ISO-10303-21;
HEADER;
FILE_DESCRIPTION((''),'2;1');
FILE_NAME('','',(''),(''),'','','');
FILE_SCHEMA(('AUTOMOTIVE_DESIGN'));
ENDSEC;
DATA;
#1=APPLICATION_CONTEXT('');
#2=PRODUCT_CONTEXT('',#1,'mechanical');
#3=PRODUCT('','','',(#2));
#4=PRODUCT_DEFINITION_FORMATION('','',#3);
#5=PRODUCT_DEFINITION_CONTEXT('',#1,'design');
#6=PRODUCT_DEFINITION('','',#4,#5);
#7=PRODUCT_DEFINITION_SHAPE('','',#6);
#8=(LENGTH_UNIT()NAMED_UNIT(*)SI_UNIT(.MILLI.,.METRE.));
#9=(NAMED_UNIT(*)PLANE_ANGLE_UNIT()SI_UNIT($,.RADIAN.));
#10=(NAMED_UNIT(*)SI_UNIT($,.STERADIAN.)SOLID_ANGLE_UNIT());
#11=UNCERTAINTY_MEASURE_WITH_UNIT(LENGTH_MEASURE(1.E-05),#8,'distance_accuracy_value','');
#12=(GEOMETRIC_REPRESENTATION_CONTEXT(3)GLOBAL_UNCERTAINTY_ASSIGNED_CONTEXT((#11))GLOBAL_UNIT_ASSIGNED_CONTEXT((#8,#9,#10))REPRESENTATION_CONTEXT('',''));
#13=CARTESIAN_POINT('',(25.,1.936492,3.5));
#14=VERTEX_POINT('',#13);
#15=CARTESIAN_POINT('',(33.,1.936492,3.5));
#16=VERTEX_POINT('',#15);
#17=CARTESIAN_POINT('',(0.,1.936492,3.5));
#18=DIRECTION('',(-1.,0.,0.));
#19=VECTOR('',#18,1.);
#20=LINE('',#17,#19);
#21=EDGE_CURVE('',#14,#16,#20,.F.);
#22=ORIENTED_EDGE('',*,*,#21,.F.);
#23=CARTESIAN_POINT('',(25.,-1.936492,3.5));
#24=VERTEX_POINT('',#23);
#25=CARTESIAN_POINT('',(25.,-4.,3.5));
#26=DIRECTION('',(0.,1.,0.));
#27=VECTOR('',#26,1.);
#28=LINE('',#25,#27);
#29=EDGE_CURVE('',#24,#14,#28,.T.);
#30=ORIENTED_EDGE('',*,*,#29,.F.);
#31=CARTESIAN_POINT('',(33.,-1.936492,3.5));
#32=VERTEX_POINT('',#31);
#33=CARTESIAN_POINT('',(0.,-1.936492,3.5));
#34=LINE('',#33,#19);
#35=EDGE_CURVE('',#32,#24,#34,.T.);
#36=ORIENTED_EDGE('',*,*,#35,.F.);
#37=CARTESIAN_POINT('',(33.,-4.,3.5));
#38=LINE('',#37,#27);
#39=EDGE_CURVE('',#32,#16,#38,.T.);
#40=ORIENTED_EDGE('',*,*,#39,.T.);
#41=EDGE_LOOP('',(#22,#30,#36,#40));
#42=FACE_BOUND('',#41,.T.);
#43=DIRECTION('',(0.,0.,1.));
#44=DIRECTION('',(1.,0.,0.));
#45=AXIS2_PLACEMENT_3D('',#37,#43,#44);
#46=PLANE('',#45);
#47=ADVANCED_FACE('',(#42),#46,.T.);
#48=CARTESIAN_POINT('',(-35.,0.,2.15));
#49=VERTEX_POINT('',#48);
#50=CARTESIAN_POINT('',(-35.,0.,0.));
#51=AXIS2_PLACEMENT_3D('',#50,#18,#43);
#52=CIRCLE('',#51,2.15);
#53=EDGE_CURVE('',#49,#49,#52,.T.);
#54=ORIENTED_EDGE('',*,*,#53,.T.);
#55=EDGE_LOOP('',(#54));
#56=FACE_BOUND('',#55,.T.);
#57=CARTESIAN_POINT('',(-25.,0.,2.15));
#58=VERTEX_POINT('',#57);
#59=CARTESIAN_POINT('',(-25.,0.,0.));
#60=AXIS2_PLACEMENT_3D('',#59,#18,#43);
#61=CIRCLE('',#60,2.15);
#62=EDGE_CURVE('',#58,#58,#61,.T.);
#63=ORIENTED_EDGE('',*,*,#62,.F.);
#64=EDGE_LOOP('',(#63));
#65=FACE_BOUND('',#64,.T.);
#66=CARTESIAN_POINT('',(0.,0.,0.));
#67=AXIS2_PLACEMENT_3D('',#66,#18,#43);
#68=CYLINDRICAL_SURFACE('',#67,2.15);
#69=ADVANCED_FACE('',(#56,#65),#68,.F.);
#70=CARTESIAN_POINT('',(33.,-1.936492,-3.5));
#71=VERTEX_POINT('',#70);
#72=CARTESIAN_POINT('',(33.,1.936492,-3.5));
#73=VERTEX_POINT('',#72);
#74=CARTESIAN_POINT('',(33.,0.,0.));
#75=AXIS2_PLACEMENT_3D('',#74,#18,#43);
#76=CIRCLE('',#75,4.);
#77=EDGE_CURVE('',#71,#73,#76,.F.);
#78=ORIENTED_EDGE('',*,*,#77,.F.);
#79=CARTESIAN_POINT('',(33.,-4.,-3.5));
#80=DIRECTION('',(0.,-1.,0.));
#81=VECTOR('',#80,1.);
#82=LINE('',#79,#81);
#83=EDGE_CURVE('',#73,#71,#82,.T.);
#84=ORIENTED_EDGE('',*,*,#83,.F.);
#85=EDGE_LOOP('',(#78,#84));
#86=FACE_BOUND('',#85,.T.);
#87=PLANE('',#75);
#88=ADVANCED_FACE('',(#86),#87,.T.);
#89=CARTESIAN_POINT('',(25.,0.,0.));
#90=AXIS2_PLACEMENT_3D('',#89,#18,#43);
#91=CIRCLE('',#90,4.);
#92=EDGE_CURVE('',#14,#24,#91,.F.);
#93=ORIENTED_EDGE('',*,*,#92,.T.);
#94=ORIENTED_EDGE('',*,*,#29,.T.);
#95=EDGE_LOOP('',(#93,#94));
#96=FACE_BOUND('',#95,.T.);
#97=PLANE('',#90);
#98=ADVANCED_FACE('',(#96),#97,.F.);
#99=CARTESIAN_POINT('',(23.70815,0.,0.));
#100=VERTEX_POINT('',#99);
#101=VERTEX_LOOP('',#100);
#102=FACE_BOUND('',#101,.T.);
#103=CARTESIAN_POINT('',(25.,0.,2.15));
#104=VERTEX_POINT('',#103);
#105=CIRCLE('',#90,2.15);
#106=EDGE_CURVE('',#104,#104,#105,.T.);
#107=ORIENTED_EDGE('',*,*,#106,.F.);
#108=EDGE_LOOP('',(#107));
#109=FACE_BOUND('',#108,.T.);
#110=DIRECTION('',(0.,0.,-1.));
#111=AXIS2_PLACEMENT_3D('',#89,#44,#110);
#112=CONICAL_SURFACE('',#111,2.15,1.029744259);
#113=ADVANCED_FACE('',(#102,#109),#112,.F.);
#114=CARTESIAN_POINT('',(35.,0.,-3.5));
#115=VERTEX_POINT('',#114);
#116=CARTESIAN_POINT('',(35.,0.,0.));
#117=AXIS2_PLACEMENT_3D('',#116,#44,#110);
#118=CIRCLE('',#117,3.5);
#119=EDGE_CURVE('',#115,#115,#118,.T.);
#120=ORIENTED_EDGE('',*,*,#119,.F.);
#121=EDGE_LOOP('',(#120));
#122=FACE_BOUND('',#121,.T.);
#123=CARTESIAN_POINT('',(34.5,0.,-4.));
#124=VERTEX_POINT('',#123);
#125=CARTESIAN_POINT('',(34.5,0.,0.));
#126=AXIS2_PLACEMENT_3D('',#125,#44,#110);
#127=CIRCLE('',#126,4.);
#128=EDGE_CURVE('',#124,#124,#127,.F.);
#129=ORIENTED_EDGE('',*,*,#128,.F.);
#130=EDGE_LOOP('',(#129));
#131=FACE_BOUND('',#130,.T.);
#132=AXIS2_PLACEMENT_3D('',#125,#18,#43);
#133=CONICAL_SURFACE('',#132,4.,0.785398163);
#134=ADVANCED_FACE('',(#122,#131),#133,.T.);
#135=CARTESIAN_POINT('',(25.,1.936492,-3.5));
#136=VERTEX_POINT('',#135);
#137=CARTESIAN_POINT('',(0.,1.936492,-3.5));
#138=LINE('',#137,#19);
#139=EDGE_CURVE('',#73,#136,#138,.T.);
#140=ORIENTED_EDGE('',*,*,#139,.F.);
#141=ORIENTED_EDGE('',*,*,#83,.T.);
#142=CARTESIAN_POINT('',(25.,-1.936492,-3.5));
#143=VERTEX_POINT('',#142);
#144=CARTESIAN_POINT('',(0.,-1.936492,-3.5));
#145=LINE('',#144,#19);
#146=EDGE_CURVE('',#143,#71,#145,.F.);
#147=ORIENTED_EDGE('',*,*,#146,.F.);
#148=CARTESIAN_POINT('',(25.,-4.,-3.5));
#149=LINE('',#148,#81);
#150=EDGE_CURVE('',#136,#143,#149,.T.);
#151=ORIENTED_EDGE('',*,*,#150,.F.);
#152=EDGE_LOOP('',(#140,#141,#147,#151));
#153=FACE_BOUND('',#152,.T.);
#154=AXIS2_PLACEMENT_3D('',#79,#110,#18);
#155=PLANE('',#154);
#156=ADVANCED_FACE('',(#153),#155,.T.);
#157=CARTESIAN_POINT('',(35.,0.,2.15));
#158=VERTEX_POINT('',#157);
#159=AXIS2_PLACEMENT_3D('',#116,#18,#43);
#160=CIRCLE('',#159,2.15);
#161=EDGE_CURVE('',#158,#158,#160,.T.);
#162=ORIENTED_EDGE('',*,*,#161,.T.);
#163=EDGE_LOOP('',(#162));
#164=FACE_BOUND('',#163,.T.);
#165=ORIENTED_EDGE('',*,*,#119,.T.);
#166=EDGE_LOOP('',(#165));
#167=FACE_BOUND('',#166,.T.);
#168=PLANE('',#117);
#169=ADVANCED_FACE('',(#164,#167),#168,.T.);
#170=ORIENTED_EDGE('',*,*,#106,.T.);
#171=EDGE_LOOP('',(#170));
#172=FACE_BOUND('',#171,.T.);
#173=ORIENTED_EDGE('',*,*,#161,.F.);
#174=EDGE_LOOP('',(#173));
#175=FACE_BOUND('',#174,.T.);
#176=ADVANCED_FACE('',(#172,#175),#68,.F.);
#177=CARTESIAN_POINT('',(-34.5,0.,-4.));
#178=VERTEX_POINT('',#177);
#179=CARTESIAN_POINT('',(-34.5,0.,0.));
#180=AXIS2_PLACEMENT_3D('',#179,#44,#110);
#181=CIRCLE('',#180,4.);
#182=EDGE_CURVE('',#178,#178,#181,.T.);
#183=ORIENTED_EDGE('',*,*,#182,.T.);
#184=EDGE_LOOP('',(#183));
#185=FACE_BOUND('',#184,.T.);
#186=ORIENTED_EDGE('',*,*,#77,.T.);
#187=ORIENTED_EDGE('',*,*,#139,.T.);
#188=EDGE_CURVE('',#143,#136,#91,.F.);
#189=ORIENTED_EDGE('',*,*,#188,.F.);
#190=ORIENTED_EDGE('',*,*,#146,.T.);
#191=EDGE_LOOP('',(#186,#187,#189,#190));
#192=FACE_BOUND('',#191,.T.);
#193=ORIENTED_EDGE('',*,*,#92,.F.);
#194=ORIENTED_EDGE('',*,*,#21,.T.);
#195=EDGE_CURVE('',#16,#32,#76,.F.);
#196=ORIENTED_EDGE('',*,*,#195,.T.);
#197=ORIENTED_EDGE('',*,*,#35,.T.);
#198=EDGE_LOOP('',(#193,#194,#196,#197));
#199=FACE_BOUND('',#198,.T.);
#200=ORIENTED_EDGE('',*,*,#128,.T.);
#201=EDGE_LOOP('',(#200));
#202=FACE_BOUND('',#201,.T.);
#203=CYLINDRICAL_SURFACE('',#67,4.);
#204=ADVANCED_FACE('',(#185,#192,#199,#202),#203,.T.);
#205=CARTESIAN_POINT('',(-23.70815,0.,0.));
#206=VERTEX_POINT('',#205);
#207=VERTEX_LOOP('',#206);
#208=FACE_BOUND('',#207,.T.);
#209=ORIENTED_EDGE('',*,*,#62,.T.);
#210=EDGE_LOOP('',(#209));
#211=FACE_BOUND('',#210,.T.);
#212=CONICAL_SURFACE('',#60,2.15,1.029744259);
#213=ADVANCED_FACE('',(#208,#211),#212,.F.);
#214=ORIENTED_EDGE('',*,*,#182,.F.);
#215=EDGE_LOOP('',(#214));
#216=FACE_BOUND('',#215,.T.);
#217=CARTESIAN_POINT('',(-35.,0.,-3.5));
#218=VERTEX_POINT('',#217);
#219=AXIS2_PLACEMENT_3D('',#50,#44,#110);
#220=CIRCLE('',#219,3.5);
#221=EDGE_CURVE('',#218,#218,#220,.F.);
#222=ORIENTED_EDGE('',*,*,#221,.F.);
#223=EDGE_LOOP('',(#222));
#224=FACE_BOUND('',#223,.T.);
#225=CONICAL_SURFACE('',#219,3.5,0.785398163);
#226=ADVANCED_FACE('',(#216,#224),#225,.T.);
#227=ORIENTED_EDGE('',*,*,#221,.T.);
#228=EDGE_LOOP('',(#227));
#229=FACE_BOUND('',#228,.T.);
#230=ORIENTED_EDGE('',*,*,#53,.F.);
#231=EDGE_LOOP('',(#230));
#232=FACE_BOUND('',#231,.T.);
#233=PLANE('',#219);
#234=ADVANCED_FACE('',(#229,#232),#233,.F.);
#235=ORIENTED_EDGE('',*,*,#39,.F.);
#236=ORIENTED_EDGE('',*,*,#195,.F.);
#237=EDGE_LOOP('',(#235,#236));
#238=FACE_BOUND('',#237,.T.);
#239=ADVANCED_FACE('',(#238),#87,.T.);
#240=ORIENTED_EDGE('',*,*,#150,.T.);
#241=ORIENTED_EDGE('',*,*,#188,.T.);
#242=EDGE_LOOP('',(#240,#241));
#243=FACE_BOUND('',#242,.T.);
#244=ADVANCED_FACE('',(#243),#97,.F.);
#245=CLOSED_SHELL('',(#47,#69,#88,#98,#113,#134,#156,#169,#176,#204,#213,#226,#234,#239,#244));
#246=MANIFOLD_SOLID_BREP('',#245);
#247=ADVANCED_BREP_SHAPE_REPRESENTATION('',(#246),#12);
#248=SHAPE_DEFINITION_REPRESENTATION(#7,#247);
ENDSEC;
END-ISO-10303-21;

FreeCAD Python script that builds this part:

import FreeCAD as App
import Part
import Sketcher

V = App.Vector
Q = App.Units.Quantity


def edges_at(feature, points):
    """Names of the edges that pass closest to the given points."""
    edges = feature.Shape.Edges
    near = lambda p: min(range(len(edges)), key=lambda i: edges[i].distToShape(Part.Vertex(*p))[0])
    return sorted({f"Edge{near(p) + 1}" for p in points})


def add_polygon(sketch, points):
    """Adds a closed chain of lines whose ends are joined by coincident constraints."""
    first, n = sketch.GeometryCount, len(points)
    for a, b in zip(points, points[1:] + points[:1]):
        sketch.addGeometry(Part.LineSegment(App.Vector(*a, 0), App.Vector(*b, 0)), False)
    for i in range(n):
        sketch.addConstraint(Sketcher.Constraint("Coincident", first + i, 2, first + (i + 1) % n, 1))

doc = App.newDocument("Part")
body = doc.addObject("PartDesign::Body", "Body")

# Sketch on XY plane
sketch1 = body.newObject("Sketcher::SketchObject", "Sketch")
sketch1.AttachmentSupport = (doc.getObject("XY_Plane"), [""])
sketch1.MapMode = "FlatFace"
add_polygon(sketch1, [(-35, 2.1), (-25, 2.1), (-23.7, 0), (23.7, 0), (25, 2.1), (35, 2.1), (35, 4), (-35, 4)])  # lines 0-7
sketch1.addConstraint([
    Sketcher.Constraint("Horizontal", 0),
    Sketcher.Constraint("Horizontal", 2),
    Sketcher.Constraint("Horizontal", 4),
    Sketcher.Constraint("Vertical", 5),
    Sketcher.Constraint("Horizontal", 6),
    Sketcher.Constraint("Vertical", 7),
    Sketcher.Constraint("Symmetric", 1, 2, 2, 2, -1, 1),
    Sketcher.Constraint("Symmetric", 0, 2, 3, 2, -2),
    Sketcher.Constraint("Equal", 0, 4),
    Sketcher.Constraint("DistanceX", 0, 1, 0, 2, Q("10 mm")),
    Sketcher.Constraint("DistanceX", 6, 2, 6, 1, Q("70 mm")),
    Sketcher.Constraint("Angle", 1, Q("-59 deg")),
    Sketcher.Constraint("DistanceY", -1, 1, 5, 2, Q("4 mm")),
    Sketcher.Constraint("DistanceY", 5, 1, 5, 2, Q("1.85 mm")),
])
revolution = body.newObject("PartDesign::Revolution", "Revolution")
revolution.Profile = sketch1
revolution.ReferenceAxis = (sketch1, ["H_Axis"])
revolution.Angle = 360
doc.recompute()

chamfer = body.newObject("PartDesign::Chamfer", "Chamfer")
chamfer.Base = (revolution, edges_at(revolution, [(-35, 0, -4), (35, 0, -4)]))
chamfer.Size = 0.5

# Sketch on YZ plane
sketch2 = body.newObject("Sketcher::SketchObject", "Sketch001")
sketch2.AttachmentSupport = (doc.getObject("YZ_Plane"), [""])
sketch2.MapMode = "FlatFace"
sketch2.AttachmentOffset = App.Placement(V(0, 0, 25), App.Rotation())
add_polygon(sketch2, [(12, -12), (-12, -12), (-12, 12), (12, 12)])  # lines 0-3
add_polygon(sketch2, [(-4, 4), (-4, -4), (4, -4), (4, 4)])  # lines 4-7
sketch2.addConstraint([
    Sketcher.Constraint("Horizontal", 0),
    Sketcher.Constraint("Vertical", 1),
    Sketcher.Constraint("Horizontal", 2),
    Sketcher.Constraint("Vertical", 3),
    Sketcher.Constraint("Vertical", 4),
    Sketcher.Constraint("Horizontal", 5),
    Sketcher.Constraint("Vertical", 6),
    Sketcher.Constraint("Horizontal", 7),
    Sketcher.Constraint("Symmetric", 0, 2, 2, 2, -1, 1),
    Sketcher.Constraint("Symmetric", 4, 2, 6, 2, -1, 1),
    Sketcher.Constraint("Equal", 2, 1),
    Sketcher.Constraint("DistanceX", 5, 1, 5, 2, Q("8 mm")),
    Sketcher.Constraint("DistanceY", 4, 2, 4, 1, Q("7 mm")),
    Sketcher.Constraint("DistanceX", 0, 2, 0, 1, Q("24.182 mm")),
])
pocket1 = body.newObject("PartDesign::Pocket", "Pocket")
pocket1.Profile = sketch2
pocket1.Length = 8
pocket1.Reversed = True

doc.recompute()
